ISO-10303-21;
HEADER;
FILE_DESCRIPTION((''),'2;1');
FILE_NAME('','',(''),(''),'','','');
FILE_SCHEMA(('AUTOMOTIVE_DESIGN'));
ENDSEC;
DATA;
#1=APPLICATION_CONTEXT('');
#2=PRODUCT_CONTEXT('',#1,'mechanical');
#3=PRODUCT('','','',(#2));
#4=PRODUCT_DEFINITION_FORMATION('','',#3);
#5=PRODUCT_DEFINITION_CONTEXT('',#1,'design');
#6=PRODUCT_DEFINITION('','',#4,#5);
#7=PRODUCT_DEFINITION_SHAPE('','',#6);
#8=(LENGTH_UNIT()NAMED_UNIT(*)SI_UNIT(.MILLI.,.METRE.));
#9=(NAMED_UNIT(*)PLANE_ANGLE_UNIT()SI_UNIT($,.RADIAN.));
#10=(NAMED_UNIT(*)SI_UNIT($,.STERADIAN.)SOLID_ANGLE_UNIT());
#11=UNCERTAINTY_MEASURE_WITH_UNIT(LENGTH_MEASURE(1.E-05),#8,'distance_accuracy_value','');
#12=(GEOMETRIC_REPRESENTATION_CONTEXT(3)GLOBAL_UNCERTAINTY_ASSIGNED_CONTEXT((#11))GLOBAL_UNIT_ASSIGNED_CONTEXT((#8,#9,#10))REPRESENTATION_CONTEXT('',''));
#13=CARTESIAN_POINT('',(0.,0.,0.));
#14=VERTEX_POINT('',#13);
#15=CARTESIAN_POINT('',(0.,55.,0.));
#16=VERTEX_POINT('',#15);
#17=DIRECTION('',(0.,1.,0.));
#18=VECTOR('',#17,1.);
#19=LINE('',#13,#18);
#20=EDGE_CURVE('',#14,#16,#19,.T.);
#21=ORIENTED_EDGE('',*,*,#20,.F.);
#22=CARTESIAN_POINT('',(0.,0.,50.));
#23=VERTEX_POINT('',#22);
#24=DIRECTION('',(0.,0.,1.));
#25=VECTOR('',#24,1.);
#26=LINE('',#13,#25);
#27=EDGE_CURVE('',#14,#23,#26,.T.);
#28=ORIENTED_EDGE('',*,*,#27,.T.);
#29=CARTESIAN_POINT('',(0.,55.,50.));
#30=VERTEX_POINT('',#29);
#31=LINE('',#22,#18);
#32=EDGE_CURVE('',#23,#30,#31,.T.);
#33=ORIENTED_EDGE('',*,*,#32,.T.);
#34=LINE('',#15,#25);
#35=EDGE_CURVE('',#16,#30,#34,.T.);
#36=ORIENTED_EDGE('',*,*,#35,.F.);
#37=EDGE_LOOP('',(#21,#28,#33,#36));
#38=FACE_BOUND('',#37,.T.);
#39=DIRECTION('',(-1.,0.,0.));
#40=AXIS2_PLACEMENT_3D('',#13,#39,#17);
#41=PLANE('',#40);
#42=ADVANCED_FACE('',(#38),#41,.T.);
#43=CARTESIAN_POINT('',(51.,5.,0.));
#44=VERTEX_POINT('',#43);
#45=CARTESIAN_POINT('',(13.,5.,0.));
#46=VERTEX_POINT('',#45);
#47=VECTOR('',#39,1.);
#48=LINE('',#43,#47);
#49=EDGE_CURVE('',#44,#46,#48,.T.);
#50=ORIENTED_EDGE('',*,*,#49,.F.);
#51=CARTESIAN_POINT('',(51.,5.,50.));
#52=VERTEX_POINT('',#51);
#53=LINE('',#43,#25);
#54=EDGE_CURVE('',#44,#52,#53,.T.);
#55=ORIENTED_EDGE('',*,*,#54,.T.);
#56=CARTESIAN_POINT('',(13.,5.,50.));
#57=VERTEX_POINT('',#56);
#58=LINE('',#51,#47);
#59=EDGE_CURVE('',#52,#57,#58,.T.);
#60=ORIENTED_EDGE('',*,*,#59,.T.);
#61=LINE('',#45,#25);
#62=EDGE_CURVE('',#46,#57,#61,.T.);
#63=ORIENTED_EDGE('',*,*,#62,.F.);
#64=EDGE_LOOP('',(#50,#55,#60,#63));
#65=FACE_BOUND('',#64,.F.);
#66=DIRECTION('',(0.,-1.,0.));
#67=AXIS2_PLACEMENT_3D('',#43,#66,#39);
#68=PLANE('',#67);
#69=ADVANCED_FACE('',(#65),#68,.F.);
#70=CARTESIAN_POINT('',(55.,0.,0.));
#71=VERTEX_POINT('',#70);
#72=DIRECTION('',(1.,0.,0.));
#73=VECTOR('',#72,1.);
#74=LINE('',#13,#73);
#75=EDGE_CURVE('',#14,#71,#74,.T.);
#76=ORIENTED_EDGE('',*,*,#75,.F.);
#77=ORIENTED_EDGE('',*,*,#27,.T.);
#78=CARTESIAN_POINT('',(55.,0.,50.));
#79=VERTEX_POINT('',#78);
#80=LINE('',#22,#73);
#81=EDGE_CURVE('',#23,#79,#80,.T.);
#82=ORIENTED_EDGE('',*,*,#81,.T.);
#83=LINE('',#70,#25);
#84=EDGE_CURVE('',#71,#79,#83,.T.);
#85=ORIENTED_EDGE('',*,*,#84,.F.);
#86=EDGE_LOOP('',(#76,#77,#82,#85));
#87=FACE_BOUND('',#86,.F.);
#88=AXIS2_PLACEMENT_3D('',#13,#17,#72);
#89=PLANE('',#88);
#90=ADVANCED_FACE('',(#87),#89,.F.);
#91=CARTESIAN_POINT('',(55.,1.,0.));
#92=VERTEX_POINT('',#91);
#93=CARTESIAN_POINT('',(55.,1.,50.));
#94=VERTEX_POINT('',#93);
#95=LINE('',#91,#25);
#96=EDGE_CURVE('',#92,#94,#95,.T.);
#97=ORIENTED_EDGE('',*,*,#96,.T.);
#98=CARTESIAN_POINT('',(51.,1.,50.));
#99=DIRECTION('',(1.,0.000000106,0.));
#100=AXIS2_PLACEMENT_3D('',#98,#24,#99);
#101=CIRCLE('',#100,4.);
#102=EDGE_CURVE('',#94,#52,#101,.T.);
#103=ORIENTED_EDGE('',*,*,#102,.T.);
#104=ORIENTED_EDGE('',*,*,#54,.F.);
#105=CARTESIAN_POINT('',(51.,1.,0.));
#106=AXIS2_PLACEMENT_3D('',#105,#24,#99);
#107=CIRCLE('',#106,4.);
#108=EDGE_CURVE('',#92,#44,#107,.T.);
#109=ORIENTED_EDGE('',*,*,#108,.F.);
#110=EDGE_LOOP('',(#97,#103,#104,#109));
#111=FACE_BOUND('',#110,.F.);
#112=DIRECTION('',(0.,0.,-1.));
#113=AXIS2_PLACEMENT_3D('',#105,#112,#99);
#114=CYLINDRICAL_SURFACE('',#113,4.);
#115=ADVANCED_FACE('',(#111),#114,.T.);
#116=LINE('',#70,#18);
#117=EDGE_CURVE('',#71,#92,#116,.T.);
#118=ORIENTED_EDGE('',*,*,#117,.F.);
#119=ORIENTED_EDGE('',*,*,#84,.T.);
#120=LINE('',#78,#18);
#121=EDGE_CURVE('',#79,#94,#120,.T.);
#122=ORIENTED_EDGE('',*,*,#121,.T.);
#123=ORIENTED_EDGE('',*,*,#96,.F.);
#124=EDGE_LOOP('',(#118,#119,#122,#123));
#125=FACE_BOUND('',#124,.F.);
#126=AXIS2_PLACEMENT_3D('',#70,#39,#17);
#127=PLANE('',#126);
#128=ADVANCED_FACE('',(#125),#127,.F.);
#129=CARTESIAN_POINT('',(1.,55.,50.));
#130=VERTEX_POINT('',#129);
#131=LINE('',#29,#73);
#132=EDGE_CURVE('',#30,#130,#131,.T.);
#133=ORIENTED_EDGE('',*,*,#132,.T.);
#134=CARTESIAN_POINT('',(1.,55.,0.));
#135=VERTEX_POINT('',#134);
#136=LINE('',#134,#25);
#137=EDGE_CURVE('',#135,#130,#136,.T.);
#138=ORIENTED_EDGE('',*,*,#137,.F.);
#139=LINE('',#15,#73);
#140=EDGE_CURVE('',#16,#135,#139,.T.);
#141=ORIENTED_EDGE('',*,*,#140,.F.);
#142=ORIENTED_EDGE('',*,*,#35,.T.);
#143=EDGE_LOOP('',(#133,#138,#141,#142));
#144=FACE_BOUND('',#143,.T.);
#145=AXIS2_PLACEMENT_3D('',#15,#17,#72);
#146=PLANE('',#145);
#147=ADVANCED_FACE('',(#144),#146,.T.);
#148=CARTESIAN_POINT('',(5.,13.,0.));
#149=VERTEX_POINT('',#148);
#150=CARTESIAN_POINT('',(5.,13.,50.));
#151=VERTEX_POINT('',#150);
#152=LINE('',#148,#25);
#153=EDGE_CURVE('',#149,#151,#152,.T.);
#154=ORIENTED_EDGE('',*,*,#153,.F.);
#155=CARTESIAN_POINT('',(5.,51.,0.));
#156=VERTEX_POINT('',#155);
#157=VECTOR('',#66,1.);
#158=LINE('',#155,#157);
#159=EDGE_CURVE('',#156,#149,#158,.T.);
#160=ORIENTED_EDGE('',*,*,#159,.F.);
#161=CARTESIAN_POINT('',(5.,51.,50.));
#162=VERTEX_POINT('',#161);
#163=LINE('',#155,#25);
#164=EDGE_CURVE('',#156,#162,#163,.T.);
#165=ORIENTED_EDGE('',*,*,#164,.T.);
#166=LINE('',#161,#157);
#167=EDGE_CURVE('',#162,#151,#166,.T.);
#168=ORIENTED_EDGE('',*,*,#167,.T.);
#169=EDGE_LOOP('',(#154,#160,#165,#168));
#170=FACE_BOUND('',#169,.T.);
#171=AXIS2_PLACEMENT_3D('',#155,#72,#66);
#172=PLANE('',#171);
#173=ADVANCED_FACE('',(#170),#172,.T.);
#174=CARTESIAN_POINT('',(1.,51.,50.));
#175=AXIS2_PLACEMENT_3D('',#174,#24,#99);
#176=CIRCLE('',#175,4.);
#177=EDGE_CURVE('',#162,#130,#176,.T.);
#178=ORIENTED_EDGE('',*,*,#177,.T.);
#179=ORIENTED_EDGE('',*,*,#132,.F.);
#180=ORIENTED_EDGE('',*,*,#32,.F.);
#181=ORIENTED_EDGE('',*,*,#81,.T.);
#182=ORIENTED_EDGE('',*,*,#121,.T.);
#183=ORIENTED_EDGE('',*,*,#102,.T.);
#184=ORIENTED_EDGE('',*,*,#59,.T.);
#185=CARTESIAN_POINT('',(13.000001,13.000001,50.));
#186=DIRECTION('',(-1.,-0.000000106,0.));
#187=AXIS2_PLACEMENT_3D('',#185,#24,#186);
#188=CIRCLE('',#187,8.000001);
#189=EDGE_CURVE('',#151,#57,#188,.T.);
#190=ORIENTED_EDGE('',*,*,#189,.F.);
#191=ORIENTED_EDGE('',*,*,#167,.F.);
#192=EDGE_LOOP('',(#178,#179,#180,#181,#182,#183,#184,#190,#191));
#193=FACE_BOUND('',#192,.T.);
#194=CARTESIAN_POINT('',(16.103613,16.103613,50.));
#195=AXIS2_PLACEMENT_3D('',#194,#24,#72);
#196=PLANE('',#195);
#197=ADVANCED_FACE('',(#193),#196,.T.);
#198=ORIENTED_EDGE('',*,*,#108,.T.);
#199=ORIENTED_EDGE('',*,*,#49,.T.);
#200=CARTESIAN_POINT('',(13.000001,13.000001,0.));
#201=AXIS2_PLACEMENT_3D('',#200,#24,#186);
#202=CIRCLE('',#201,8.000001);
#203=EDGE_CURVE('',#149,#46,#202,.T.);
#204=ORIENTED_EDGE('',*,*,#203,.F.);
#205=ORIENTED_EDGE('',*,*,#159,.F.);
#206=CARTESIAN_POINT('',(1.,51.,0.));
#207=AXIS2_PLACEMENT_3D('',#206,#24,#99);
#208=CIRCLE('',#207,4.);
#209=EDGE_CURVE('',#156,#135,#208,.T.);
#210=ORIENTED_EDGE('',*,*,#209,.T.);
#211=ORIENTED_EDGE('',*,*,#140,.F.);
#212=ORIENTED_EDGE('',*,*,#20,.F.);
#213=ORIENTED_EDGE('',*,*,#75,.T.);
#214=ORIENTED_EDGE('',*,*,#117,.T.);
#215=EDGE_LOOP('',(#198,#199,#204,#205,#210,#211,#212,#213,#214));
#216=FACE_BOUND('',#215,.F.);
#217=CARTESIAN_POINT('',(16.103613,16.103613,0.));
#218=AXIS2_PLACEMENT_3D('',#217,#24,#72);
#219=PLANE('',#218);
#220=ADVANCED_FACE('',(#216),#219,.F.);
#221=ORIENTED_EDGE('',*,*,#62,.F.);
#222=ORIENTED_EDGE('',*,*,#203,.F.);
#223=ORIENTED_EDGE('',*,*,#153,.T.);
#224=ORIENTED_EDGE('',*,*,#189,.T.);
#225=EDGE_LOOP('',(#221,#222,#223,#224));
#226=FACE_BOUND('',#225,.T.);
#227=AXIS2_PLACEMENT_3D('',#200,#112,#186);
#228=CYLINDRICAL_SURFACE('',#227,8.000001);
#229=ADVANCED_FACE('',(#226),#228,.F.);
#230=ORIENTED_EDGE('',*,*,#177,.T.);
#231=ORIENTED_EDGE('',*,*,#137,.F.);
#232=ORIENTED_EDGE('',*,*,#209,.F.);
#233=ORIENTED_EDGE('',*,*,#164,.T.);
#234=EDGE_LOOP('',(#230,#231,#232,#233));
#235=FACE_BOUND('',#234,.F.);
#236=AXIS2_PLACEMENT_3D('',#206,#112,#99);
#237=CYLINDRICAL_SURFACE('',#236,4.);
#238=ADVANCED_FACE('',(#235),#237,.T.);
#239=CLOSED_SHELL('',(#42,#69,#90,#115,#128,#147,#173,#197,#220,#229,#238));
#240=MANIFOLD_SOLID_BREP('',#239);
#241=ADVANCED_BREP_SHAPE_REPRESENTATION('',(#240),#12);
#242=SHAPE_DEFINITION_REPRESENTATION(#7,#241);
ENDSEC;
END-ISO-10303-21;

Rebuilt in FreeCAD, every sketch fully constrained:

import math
import FreeCAD as App
import Part
import Sketcher
from FreeCAD import Vector

doc = App.newDocument("Part")
body = doc.addObject("PartDesign::Body", "Body")

# Sketch on XY plane
sketch1 = body.newObject("Sketcher::SketchObject", "Sketch")
sketch1.AttachmentSupport = (doc.getObject("XY_Plane"), [""])
sketch1.MapMode = "FlatFace"
sketch1.addGeometry([
    Part.LineSegment(Vector(0, 0, 0), Vector(55, 0, 0)),  # 0
    Part.LineSegment(Vector(55, 0, 0), Vector(55, 1, 0)),  # 1
    Part.ArcOfCircle(Part.Circle(Vector(51, 1, 0), Vector(0, 0, 1), 4), math.radians(0), math.radians(90)),  # 2
    Part.LineSegment(Vector(51, 5, 0), Vector(13, 5, 0)),  # 3
    Part.ArcOfCircle(Part.Circle(Vector(13, 13, 0), Vector(0, 0, 1), 8), math.radians(-180), math.radians(-90)),  # 4
    Part.LineSegment(Vector(5, 13, 0), Vector(5, 51, 0)),  # 5
    Part.ArcOfCircle(Part.Circle(Vector(1, 51, 0), Vector(0, 0, 1), 4), math.radians(0), math.radians(90)),  # 6
    Part.LineSegment(Vector(1, 55, 0), Vector(0, 55, 0)),  # 7
    Part.LineSegment(Vector(0, 55, 0), Vector(0, 0, 0)),  # 8
], False)
sketch1.addConstraint([
    Sketcher.Constraint("Coincident", 0, 2, 1, 1),
    Sketcher.Constraint("Tangent", 1, 2, 2, 1),
    Sketcher.Constraint("Tangent", 2, 2, 3, 1),
    Sketcher.Constraint("Tangent", 3, 2, 4, 2),
    Sketcher.Constraint("Tangent", 4, 1, 5, 1),
    Sketcher.Constraint("Tangent", 5, 2, 6, 1),
    Sketcher.Constraint("Tangent", 6, 2, 7, 1),
    Sketcher.Constraint("Coincident", 7, 2, 8, 1),
    Sketcher.Constraint("Coincident", 8, 2, 0, 1),
    Sketcher.Constraint("Horizontal", 0),
    Sketcher.Constraint("Vertical", 1),
    Sketcher.Constraint("Horizontal", 3),
    Sketcher.Constraint("Vertical", 5),
    Sketcher.Constraint("Horizontal", 7),
    Sketcher.Constraint("Vertical", 8),
    Sketcher.Constraint("Coincident", 8, 2, -1, 1),
    Sketcher.Constraint("Equal", 2, 6),
    Sketcher.Constraint("Equal", 7, 1),
    Sketcher.Constraint("Equal", 3, 5),
    Sketcher.Constraint("Radius", 2, 4.0),
    Sketcher.Constraint("Radius", 4, 8.000001),
    Sketcher.Constraint("DistanceX", 0, 1, 0, 2, 55.0),
    Sketcher.Constraint("DistanceX", 3, 2, 3, 1, 38.0),
])
pad1 = body.newObject("PartDesign::Pad", "Pad")
pad1.Profile = sketch1
pad1.Length = 50

doc.recompute()
